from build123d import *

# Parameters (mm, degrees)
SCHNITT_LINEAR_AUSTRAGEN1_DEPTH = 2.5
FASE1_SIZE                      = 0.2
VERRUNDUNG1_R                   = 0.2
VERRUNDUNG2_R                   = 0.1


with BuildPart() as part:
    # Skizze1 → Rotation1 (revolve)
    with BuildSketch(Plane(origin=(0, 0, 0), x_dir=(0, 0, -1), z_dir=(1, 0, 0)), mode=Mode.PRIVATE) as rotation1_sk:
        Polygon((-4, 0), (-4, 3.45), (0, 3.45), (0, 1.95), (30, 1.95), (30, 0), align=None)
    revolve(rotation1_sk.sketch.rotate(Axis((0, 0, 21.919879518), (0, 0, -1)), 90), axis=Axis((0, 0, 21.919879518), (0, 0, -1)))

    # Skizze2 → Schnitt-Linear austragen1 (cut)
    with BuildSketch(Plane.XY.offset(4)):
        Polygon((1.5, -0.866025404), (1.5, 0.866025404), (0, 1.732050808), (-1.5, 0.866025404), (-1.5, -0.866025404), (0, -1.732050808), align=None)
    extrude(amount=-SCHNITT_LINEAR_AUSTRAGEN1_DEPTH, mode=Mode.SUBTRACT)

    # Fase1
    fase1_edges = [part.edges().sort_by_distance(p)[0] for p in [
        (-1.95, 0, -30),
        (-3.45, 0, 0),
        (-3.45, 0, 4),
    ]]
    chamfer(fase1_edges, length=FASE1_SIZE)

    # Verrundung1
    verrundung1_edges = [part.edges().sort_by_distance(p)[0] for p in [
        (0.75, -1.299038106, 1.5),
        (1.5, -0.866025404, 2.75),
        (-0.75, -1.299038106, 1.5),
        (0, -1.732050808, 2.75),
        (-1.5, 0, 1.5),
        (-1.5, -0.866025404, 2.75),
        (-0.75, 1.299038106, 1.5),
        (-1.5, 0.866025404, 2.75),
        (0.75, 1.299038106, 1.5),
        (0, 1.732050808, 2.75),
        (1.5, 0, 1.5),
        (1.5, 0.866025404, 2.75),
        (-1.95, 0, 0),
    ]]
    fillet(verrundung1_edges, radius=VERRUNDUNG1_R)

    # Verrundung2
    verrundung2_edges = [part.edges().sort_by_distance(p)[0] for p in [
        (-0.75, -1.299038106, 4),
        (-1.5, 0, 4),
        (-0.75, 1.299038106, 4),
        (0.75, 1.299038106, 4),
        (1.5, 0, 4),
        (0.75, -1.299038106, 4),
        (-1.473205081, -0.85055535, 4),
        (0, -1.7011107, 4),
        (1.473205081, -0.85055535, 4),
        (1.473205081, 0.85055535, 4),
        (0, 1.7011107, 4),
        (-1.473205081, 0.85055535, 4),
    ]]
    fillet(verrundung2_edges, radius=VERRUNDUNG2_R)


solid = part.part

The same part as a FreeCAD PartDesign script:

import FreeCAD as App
import Part
import Sketcher
Q = App.Units.Quantity


def edges_at(feature, points):
    """Names of the edges that pass closest to the given points."""
    edges = feature.Shape.Edges
    near = lambda p: min(range(len(edges)), key=lambda i: edges[i].distToShape(Part.Vertex(*p))[0])
    return sorted({f"Edge{near(p) + 1}" for p in points})


def add_polygon(sketch, points):
    """Adds a closed chain of lines whose ends are joined by coincident constraints."""
    first, n = sketch.GeometryCount, len(points)
    for a, b in zip(points, points[1:] + points[:1]):
        sketch.addGeometry(Part.LineSegment(App.Vector(*a, 0), App.Vector(*b, 0)), False)
    for i in range(n):
        sketch.addConstraint(Sketcher.Constraint("Coincident", first + i, 2, first + (i + 1) % n, 1))

doc = App.newDocument("Part")
params = doc.addObject("Spreadsheet::Sheet", "Params")
for row, (alias, value) in enumerate([
    ("sketch1_height", "34 mm"),
    ("sketch1_height2", "30 mm"),
    ("sketch1_width", "1.5 mm"),
    ("sketch1_width2", "3.45 mm"),
    ("revolution_angle", "360 deg"),
    ("pocket1_length", "2.5 mm"),
    ("chamfer_size", "0.2 mm"),
    ("fillet_radius", "0.2 mm"),
    ("fillet2_radius", "0.1 mm"),
], start=1):
    params.set(f"A{row}", alias)
    params.set(f"B{row}", "=" + value)
    params.setAlias(f"B{row}", alias)

body = doc.addObject("PartDesign::Body", "Body")

sketch1 = body.newObject("Sketcher::SketchObject", "Sketch")
sketch1.AttachmentSupport = (doc.getObject("YZ_Plane"), [""])
sketch1.MapMode = "FlatFace"
add_polygon(sketch1, [(3.5, 4), (0, 4), (0, -30), (1.9, -30), (1.9, 0), (3.5, 0)])
sketch1.addConstraint([
    Sketcher.Constraint("Horizontal", 0),
    Sketcher.Constraint("Vertical", 1),
    Sketcher.Constraint("Horizontal", 2),
    Sketcher.Constraint("Vertical", 3),
    Sketcher.Constraint("Horizontal", 4),
    Sketcher.Constraint("Vertical", 5),
    Sketcher.Constraint("PointOnObject", 0, 2, -2),
    Sketcher.Constraint("PointOnObject", 3, 2, -1),
    Sketcher.Constraint("DistanceY", 1, 2, 1, 1, 34.0),
    Sketcher.Constraint("DistanceY", 3, 1, 3, 2, 30.0),
    Sketcher.Constraint("DistanceX", 4, 1, 4, 2, 1.5),
    Sketcher.Constraint("DistanceX", 0, 2, 0, 1, 3.45),
])
sketch1.setExpression("Constraints[14]", "Params.sketch1_height")
sketch1.setExpression("Constraints[15]", "Params.sketch1_height2")
sketch1.setExpression("Constraints[16]", "Params.sketch1_width")
sketch1.setExpression("Constraints[17]", "Params.sketch1_width2")
revolution = body.newObject("PartDesign::Revolution", "Revolution")
revolution.Profile = sketch1
revolution.ReferenceAxis = (sketch1, ["V_Axis"])
revolution.setExpression("Angle", "Params.revolution_angle")

sketch2 = body.newObject("Sketcher::SketchObject", "Sketch001")
sketch2.AttachmentSupport = (doc.getObject("XY_Plane"), [""])
sketch2.MapMode = "FlatFace"
sketch2.AttachmentOffset = App.Placement(App.Vector(0, 0, 4), App.Rotation())
add_polygon(sketch2, [(1.5, -0.9), (1.5, 0.9), (0, 1.7), (-1.5, 0.9), (-1.5, -0.9), (0, -1.7)])
sketch2.addConstraint([
    Sketcher.Constraint("Vertical", 0),
    Sketcher.Constraint("Vertical", 3),
    Sketcher.Constraint("Symmetric", 0, 2, 3, 2, -1, 1),
    Sketcher.Constraint("Symmetric", 1, 2, 4, 2, -1, 1),
    Sketcher.Constraint("PointOnObject", 1, 2, -2),
    Sketcher.Constraint("Parallel", 2, 5),
    Sketcher.Constraint("Horizontal", 0, 2, 2, 2),
    Sketcher.Constraint("Angle", 1, Q("150 deg")),
    Sketcher.Constraint("DistanceX", 2, 2, 0, 2, 3.0),
    Sketcher.Constraint("DistanceY", 0, 1, 0, 2, 1.732051),
])
pocket1 = body.newObject("PartDesign::Pocket", "Pocket")
pocket1.Profile = sketch2
pocket1.setExpression("Length", "Params.pocket1_length")
doc.recompute()

chamfer = body.newObject("PartDesign::Chamfer", "Chamfer")
chamfer.Base = (pocket1, edges_at(pocket1, [(-1.95, 0, -30), (-3.45, 0, 0), (-3.45, 0, 4)]))
chamfer.setExpression("Size", "Params.chamfer_size")
doc.recompute()

fillet = body.newObject("PartDesign::Fillet", "Fillet")
fillet.Base = (chamfer, edges_at(chamfer, [
    (0.75, -1.299, 1.5),
    (1.5, -0.866, 2.75),
    (-0.75, -1.299, 1.5),
    (0, -1.732, 2.75),
    (-1.5, 0, 1.5),
    (-1.5, -0.866, 2.75),
    (-0.75, 1.299, 1.5),
    (-1.5, 0.866, 2.75),
    (0.75, 1.299, 1.5),
    (0, 1.732, 2.75),
    (1.5, 0, 1.5),
    (1.5, 0.866, 2.75),
    (-1.95, 0, 0),
]))
fillet.setExpression("Radius", "Params.fillet_radius")
doc.recompute()

fillet2 = body.newObject("PartDesign::Fillet", "Fillet001")
fillet2.Base = (fillet, edges_at(fillet, [
    (-0.75, -1.299, 4),
    (-1.5, 0, 4),
    (-0.75, 1.299, 4),
    (0.75, 1.299, 4),
    (1.5, 0, 4),
    (0.75, -1.299, 4),
    (-1.473, -0.851, 4),
    (0, -1.701, 4),
    (1.473, -0.851, 4),
    (1.473, 0.851, 4),
    (0, 1.701, 4),
    (-1.473, 0.851, 4),
]))
fillet2.setExpression("Radius", "Params.fillet2_radius")

doc.recompute()
